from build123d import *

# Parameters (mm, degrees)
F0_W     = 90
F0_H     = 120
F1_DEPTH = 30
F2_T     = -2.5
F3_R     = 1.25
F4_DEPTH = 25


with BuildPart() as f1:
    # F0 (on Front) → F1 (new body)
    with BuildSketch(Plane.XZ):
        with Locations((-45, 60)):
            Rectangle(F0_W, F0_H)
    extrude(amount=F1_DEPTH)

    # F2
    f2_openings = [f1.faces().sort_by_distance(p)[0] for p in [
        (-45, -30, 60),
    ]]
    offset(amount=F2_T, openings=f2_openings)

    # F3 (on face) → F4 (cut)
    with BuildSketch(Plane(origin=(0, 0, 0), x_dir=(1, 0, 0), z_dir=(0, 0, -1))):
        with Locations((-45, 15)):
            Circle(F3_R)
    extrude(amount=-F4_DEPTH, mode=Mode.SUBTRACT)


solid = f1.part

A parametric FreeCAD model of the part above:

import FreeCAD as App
import Part
import Sketcher
from FreeCAD import Vector


def faces_at(feature, points):
    """Names of the faces that lie closest to the given points."""
    faces = feature.Shape.Faces
    near = lambda p: min(range(len(faces)), key=lambda i: faces[i].distToShape(Part.Vertex(*p))[0])
    return sorted({f"Face{near(p) + 1}" for p in points})


def add_polygon(sketch, points):
    """Adds a closed chain of lines whose ends are joined by coincident constraints."""
    first, n = sketch.GeometryCount, len(points)
    for a, b in zip(points, points[1:] + points[:1]):
        sketch.addGeometry(Part.LineSegment(App.Vector(*a, 0), App.Vector(*b, 0)), False)
    for i in range(n):
        sketch.addConstraint(Sketcher.Constraint("Coincident", first + i, 2, first + (i + 1) % n, 1))

doc = App.newDocument("Part")
body = doc.addObject("PartDesign::Body", "Body")

# Sketch on XZ plane
sketch1 = body.newObject("Sketcher::SketchObject", "Sketch")
sketch1.AttachmentSupport = (doc.getObject("XZ_Plane"), [""])
sketch1.MapMode = "FlatFace"
add_polygon(sketch1, [(-90, 120), (-90, 0), (0, 0), (0, 120)])  # lines 0-3
sketch1.addConstraint(Sketcher.Constraint("Vertical", 0))
sketch1.addConstraint(Sketcher.Constraint("Horizontal", 1))
sketch1.addConstraint(Sketcher.Constraint("Vertical", 2))
sketch1.addConstraint(Sketcher.Constraint("Horizontal", 3))
sketch1.addConstraint(Sketcher.Constraint("Coincident", 1, 2, -1, 1))
sketch1.addConstraint(Sketcher.Constraint("DistanceX", 1, 1, 1, 2, 90.0))
sketch1.addConstraint(Sketcher.Constraint("DistanceY", 0, 2, 0, 1, 120.0))
pad1 = body.newObject("PartDesign::Pad", "Pad")
pad1.Profile = sketch1
pad1.Length = 30
doc.recompute()

thickness = body.newObject("PartDesign::Thickness", "Thickness")
thickness.Base = (pad1, faces_at(pad1, [(-45, -30, 60)]))
thickness.Value = 2.5
thickness.Reversed = True
thickness.Join = "Arc"

# Sketch on XY plane
sketch2 = body.newObject("Sketcher::SketchObject", "Sketch001")
sketch2.AttachmentSupport = (doc.getObject("XY_Plane"), [""])
sketch2.MapMode = "FlatFace"
sketch2.addGeometry(Part.Circle(Vector(-45, -15, 0), Vector(0, 0, 1), 1.25), False)
sketch2.addConstraint(Sketcher.Constraint("Diameter", 0, 2.5))
sketch2.addConstraint(Sketcher.Constraint("DistanceX", 0, 3, -1, 1, 45.0))
sketch2.addConstraint(Sketcher.Constraint("DistanceY", 0, 3, -1, 1, 15.0))
pocket1 = body.newObject("PartDesign::Pocket", "Pocket")
pocket1.Profile = sketch2
pocket1.Length = 25
pocket1.Reversed = True

doc.recompute()
